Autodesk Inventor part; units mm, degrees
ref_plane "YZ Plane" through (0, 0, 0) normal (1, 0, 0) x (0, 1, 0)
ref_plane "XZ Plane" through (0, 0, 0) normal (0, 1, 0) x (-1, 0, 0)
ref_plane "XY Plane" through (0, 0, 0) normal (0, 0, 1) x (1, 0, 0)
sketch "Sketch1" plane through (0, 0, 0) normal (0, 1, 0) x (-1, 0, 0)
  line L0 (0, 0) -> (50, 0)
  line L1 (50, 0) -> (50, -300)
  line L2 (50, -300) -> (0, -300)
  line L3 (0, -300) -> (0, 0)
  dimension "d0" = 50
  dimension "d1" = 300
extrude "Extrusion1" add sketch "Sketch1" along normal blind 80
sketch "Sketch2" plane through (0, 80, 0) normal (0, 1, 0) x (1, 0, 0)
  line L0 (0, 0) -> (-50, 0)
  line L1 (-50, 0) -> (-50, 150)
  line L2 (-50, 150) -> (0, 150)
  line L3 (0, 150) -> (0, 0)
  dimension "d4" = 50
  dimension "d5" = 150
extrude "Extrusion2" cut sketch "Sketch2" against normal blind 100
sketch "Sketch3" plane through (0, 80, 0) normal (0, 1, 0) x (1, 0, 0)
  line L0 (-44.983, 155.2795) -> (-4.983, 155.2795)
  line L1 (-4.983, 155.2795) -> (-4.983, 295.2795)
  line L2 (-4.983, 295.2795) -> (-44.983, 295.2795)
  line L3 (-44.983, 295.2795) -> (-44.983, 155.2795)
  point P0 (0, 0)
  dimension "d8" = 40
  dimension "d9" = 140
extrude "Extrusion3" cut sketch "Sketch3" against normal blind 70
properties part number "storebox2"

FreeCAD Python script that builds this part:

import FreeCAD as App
import Part
import Sketcher

V = App.Vector
Q = App.Units.Quantity

doc = App.newDocument("Part")
body = doc.addObject("PartDesign::Body", "Body")

# Sketch on XZ plane
sketch1 = body.newObject("Sketcher::SketchObject", "Sketch")
sketch1.AttachmentSupport = (doc.getObject("XZ_Plane"), [""])
sketch1.MapMode = "FlatFace"
sketch1.addGeometry([
    Part.LineSegment(V(-50, 0, 0), V(0, 0, 0)),
    Part.LineSegment(V(0, 0, 0), V(0, -300, 0)),
    Part.LineSegment(V(0, -300, 0), V(-50, -300, 0)),
    Part.LineSegment(V(-50, -300, 0), V(-50, 0, 0)),
], False)
sketch1.addConstraint([
    Sketcher.Constraint("Coincident", 0, 2, 1, 1),
    Sketcher.Constraint("Coincident", 1, 2, 2, 1),
    Sketcher.Constraint("Coincident", 2, 2, 3, 1),
    Sketcher.Constraint("Coincident", 3, 2, 0, 1),
    Sketcher.Constraint("Horizontal", 0),
    Sketcher.Constraint("Vertical", 1),
    Sketcher.Constraint("Horizontal", 2),
    Sketcher.Constraint("Vertical", 3),
    Sketcher.Constraint("Coincident", 0, 2, -1, 1),
    Sketcher.Constraint("DistanceX", 0, 1, 0, 2, Q("50 mm")),
    Sketcher.Constraint("DistanceY", 1, 2, 1, 1, Q("300 mm")),
])
pad1 = body.newObject("PartDesign::Pad", "Pad")
pad1.Profile = sketch1
pad1.Length = 80
pad1.Reversed = True

# Sketch on XZ plane
sketch2 = body.newObject("Sketcher::SketchObject", "Sketch001")
sketch2.AttachmentSupport = (doc.getObject("XZ_Plane"), [""])
sketch2.MapMode = "FlatFace"
sketch2.AttachmentOffset = App.Placement(V(0, 0, -80), App.Rotation())
sketch2.addGeometry([
    Part.LineSegment(V(-50, 0, 0), V(0, 0, 0)),
    Part.LineSegment(V(0, 0, 0), V(0, -150, 0)),
    Part.LineSegment(V(0, -150, 0), V(-50, -150, 0)),
    Part.LineSegment(V(-50, -150, 0), V(-50, 0, 0)),
], False)
sketch2.addConstraint([
    Sketcher.Constraint("Coincident", 0, 2, 1, 1),
    Sketcher.Constraint("Coincident", 1, 2, 2, 1),
    Sketcher.Constraint("Coincident", 2, 2, 3, 1),
    Sketcher.Constraint("Coincident", 3, 2, 0, 1),
    Sketcher.Constraint("Horizontal", 0),
    Sketcher.Constraint("Vertical", 1),
    Sketcher.Constraint("Horizontal", 2),
    Sketcher.Constraint("Vertical", 3),
    Sketcher.Constraint("Coincident", 0, 2, -1, 1),
    Sketcher.Constraint("DistanceX", 0, 1, 0, 2, Q("50 mm")),
    Sketcher.Constraint("DistanceY", 1, 2, 1, 1, Q("150 mm")),
])
pocket1 = body.newObject("PartDesign::Pocket", "Pocket")
pocket1.Profile = sketch2
pocket1.Length = 100
pocket1.Reversed = True

# Sketch on XZ plane
sketch3 = body.newObject("Sketcher::SketchObject", "Sketch002")
sketch3.AttachmentSupport = (doc.getObject("XZ_Plane"), [""])
sketch3.MapMode = "FlatFace"
sketch3.AttachmentOffset = App.Placement(V(0, 0, -80), App.Rotation())
sketch3.addGeometry([
    Part.LineSegment(V(-45, -295, 0), V(-45, -155, 0)),
    Part.LineSegment(V(-45, -155, 0), V(-5, -155, 0)),
    Part.LineSegment(V(-5, -155, 0), V(-5, -295, 0)),
    Part.LineSegment(V(-5, -295, 0), V(-45, -295, 0)),
], False)
sketch3.addConstraint([
    Sketcher.Constraint("Coincident", 0, 2, 1, 1),
    Sketcher.Constraint("Coincident", 1, 2, 2, 1),
    Sketcher.Constraint("Coincident", 2, 2, 3, 1),
    Sketcher.Constraint("Coincident", 3, 2, 0, 1),
    Sketcher.Constraint("Vertical", 0),
    Sketcher.Constraint("Horizontal", 1),
    Sketcher.Constraint("Vertical", 2),
    Sketcher.Constraint("Horizontal", 3),
    Sketcher.Constraint("DistanceX", 1, 1, 1, 2, Q("40 mm")),
    Sketcher.Constraint("DistanceY", 0, 1, 0, 2, Q("140 mm")),
    Sketcher.Constraint("DistanceX", 0, 2, -1, 1, Q("44.983 mm")),
    Sketcher.Constraint("DistanceY", 0, 2, -1, 1, Q("155.2795 mm")),
])
pocket2 = body.newObject("PartDesign::Pocket", "Pocket001")
pocket2.Profile = sketch3
pocket2.Length = 70
pocket2.Reversed = True

doc.recompute()
